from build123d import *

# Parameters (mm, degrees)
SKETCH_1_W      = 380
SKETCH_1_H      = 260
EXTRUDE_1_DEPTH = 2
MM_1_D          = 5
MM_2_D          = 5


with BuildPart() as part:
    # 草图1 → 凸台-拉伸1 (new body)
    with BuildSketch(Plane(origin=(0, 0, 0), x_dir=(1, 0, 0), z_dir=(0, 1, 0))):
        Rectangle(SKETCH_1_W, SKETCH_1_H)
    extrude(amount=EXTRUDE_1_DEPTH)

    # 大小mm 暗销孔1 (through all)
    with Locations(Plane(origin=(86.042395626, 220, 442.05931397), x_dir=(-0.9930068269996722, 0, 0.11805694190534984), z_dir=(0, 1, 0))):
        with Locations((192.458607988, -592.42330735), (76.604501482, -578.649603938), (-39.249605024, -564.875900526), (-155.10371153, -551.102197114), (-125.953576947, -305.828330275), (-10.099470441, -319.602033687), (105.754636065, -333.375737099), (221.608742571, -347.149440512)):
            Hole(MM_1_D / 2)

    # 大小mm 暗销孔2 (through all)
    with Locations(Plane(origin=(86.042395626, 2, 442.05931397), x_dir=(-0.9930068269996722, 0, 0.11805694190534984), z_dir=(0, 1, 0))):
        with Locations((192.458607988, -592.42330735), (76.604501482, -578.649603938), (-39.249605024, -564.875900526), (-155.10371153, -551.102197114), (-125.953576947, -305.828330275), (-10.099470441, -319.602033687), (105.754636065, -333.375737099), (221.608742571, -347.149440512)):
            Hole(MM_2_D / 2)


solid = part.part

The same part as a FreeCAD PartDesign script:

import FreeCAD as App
import Part
import Sketcher

V = App.Vector

doc = App.newDocument("Part")
body = doc.addObject("PartDesign::Body", "Body")

# Sketch on XZ plane
sketch1 = doc.addObject("Sketcher::SketchObject", "Sketch")
body.addObject(sketch1)
sketch1.AttachmentSupport = (doc.XZ_Plane, [""])
sketch1.MapMode = "FlatFace"
sketch1.addGeometry(Part.LineSegment(V(-190, -130, 0), V(-190, 130, 0)), False)
sketch1.addGeometry(Part.LineSegment(V(-190, 130, 0), V(190, 130, 0)), False)
sketch1.addGeometry(Part.LineSegment(V(190, 130, 0), V(190, -130, 0)), False)
sketch1.addGeometry(Part.LineSegment(V(190, -130, 0), V(-190, -130, 0)), False)
sketch1.addConstraint(Sketcher.Constraint("Coincident", 0, 2, 1, 1))
sketch1.addConstraint(Sketcher.Constraint("Coincident", 1, 2, 2, 1))
sketch1.addConstraint(Sketcher.Constraint("Coincident", 2, 2, 3, 1))
sketch1.addConstraint(Sketcher.Constraint("Coincident", 3, 2, 0, 1))
sketch1.addConstraint(Sketcher.Constraint("Vertical", 0))
sketch1.addConstraint(Sketcher.Constraint("Horizontal", 1))
sketch1.addConstraint(Sketcher.Constraint("Vertical", 2))
sketch1.addConstraint(Sketcher.Constraint("Horizontal", 3))
sketch1.addConstraint(Sketcher.Constraint("Symmetric", 0, 2, 2, 2, -1, 1))
sketch1.addConstraint(Sketcher.Constraint("DistanceX", 1, 1, 1, 2, 380.0))
sketch1.addConstraint(Sketcher.Constraint("DistanceY", 0, 1, 0, 2, 260.0))
pad1 = doc.addObject("PartDesign::Pad", "Pad")
body.addObject(pad1)
pad1.Profile = sketch1
pad1.Length = 2
pad1.Reversed = True

# Sketch on XZ plane
sketch2 = doc.addObject("Sketcher::SketchObject", "Sketch001")
body.addObject(sketch2)
sketch2.AttachmentSupport = (doc.XZ_Plane, [""])
sketch2.MapMode = "FlatFace"
sketch2.AttachmentOffset = App.Placement(V(0, 0, -220), App.Rotation())
sketch2.addGeometry(Part.Circle(V(-175.01, -123.5, 0), V(0, 0, 1), 2.5), False)
sketch2.addGeometry(Part.Circle(V(-58.34, -123.5, 0), V(0, 0, 1), 2.5), False)
sketch2.addGeometry(Part.Circle(V(58.33, -123.5, 0), V(0, 0, 1), 2.5), False)
sketch2.addGeometry(Part.Circle(V(175, -123.5, 0), V(0, 0, 1), 2.5), False)
sketch2.addGeometry(Part.Circle(V(175.01, 123.5, 0), V(0, 0, 1), 2.5), False)
sketch2.addGeometry(Part.Circle(V(58.34, 123.5, 0), V(0, 0, 1), 2.5), False)
sketch2.addGeometry(Part.Circle(V(-58.33, 123.5, 0), V(0, 0, 1), 2.5), False)
sketch2.addGeometry(Part.Circle(V(-175, 123.5, 0), V(0, 0, 1), 2.5), False)
sketch2.addConstraint(Sketcher.Constraint("Equal", 0, 1))
sketch2.addConstraint(Sketcher.Constraint("Equal", 1, 2))
sketch2.addConstraint(Sketcher.Constraint("Equal", 2, 3))
sketch2.addConstraint(Sketcher.Constraint("Equal", 3, 4))
sketch2.addConstraint(Sketcher.Constraint("Equal", 4, 5))
sketch2.addConstraint(Sketcher.Constraint("Equal", 5, 6))
sketch2.addConstraint(Sketcher.Constraint("Equal", 6, 7))
sketch2.addConstraint(Sketcher.Constraint("Symmetric", 0, 3, 4, 3, -1, 1))
sketch2.addConstraint(Sketcher.Constraint("Symmetric", 1, 3, 5, 3, -1, 1))
sketch2.addConstraint(Sketcher.Constraint("Symmetric", 2, 3, 6, 3, -1, 1))
sketch2.addConstraint(Sketcher.Constraint("Symmetric", 3, 3, 7, 3, -1, 1))
sketch2.addConstraint(Sketcher.Constraint("Horizontal", 0, 3, 1, 3))
sketch2.addConstraint(Sketcher.Constraint("Horizontal", 1, 3, 2, 3))
sketch2.addConstraint(Sketcher.Constraint("Horizontal", 2, 3, 3, 3))
sketch2.addConstraint(Sketcher.Constraint("Diameter", 0, 5.0))
sketch2.addConstraint(Sketcher.Constraint("DistanceX", -1, 1, 3, 3, 175.0))
sketch2.addConstraint(Sketcher.Constraint("DistanceY", 3, 3, 4, 3, 247.0))
sketch2.addConstraint(Sketcher.Constraint("DistanceX", 0, 3, -1, 1, 175.01))
sketch2.addConstraint(Sketcher.Constraint("DistanceX", 1, 3, -1, 1, 58.34))
sketch2.addConstraint(Sketcher.Constraint("DistanceX", -1, 1, 2, 3, 58.33))
doc.recompute()
hole = doc.addObject("PartDesign::Hole", "Hole")
body.addObject(hole)
hole.Profile = sketch2
hole.ThreadType = "None"
hole.Diameter = 5
hole.DepthType = "ThroughAll"
hole.Reversed = True

# Sketch on XZ plane
sketch3 = doc.addObject("Sketcher::SketchObject", "Sketch002")
body.addObject(sketch3)
sketch3.AttachmentSupport = (doc.XZ_Plane, [""])
sketch3.MapMode = "FlatFace"
sketch3.AttachmentOffset = App.Placement(V(0, 0, -2), App.Rotation())
sketch3.addGeometry(Part.Circle(V(-175.01, -123.5, 0), V(0, 0, 1), 2.5), False)
sketch3.addGeometry(Part.Circle(V(-58.34, -123.5, 0), V(0, 0, 1), 2.5), False)
sketch3.addGeometry(Part.Circle(V(58.33, -123.5, 0), V(0, 0, 1), 2.5), False)
sketch3.addGeometry(Part.Circle(V(175, -123.5, 0), V(0, 0, 1), 2.5), False)
sketch3.addGeometry(Part.Circle(V(175.01, 123.5, 0), V(0, 0, 1), 2.5), False)
sketch3.addGeometry(Part.Circle(V(58.34, 123.5, 0), V(0, 0, 1), 2.5), False)
sketch3.addGeometry(Part.Circle(V(-58.33, 123.5, 0), V(0, 0, 1), 2.5), False)
sketch3.addGeometry(Part.Circle(V(-175, 123.5, 0), V(0, 0, 1), 2.5), False)
sketch3.addConstraint(Sketcher.Constraint("Equal", 0, 1))
sketch3.addConstraint(Sketcher.Constraint("Equal", 1, 2))
sketch3.addConstraint(Sketcher.Constraint("Equal", 2, 3))
sketch3.addConstraint(Sketcher.Constraint("Equal", 3, 4))
sketch3.addConstraint(Sketcher.Constraint("Equal", 4, 5))
sketch3.addConstraint(Sketcher.Constraint("Equal", 5, 6))
sketch3.addConstraint(Sketcher.Constraint("Equal", 6, 7))
sketch3.addConstraint(Sketcher.Constraint("Symmetric", 0, 3, 4, 3, -1, 1))
sketch3.addConstraint(Sketcher.Constraint("Symmetric", 1, 3, 5, 3, -1, 1))
sketch3.addConstraint(Sketcher.Constraint("Symmetric", 2, 3, 6, 3, -1, 1))
sketch3.addConstraint(Sketcher.Constraint("Symmetric", 3, 3, 7, 3, -1, 1))
sketch3.addConstraint(Sketcher.Constraint("Horizontal", 0, 3, 1, 3))
sketch3.addConstraint(Sketcher.Constraint("Horizontal", 1, 3, 2, 3))
sketch3.addConstraint(Sketcher.Constraint("Horizontal", 2, 3, 3, 3))
sketch3.addConstraint(Sketcher.Constraint("Diameter", 0, 5.0))
sketch3.addConstraint(Sketcher.Constraint("DistanceX", -1, 1, 3, 3, 175.0))
sketch3.addConstraint(Sketcher.Constraint("DistanceY", 3, 3, 4, 3, 247.0))
sketch3.addConstraint(Sketcher.Constraint("DistanceX", 0, 3, -1, 1, 175.01))
sketch3.addConstraint(Sketcher.Constraint("DistanceX", 1, 3, -1, 1, 58.34))
sketch3.addConstraint(Sketcher.Constraint("DistanceX", -1, 1, 2, 3, 58.33))
doc.recompute()
hole2 = doc.addObject("PartDesign::Hole", "Hole001")
body.addObject(hole2)
hole2.Profile = sketch3
hole2.ThreadType = "None"
hole2.Diameter = 5
hole2.DepthType = "ThroughAll"
hole2.Reversed = True

doc.recompute()
